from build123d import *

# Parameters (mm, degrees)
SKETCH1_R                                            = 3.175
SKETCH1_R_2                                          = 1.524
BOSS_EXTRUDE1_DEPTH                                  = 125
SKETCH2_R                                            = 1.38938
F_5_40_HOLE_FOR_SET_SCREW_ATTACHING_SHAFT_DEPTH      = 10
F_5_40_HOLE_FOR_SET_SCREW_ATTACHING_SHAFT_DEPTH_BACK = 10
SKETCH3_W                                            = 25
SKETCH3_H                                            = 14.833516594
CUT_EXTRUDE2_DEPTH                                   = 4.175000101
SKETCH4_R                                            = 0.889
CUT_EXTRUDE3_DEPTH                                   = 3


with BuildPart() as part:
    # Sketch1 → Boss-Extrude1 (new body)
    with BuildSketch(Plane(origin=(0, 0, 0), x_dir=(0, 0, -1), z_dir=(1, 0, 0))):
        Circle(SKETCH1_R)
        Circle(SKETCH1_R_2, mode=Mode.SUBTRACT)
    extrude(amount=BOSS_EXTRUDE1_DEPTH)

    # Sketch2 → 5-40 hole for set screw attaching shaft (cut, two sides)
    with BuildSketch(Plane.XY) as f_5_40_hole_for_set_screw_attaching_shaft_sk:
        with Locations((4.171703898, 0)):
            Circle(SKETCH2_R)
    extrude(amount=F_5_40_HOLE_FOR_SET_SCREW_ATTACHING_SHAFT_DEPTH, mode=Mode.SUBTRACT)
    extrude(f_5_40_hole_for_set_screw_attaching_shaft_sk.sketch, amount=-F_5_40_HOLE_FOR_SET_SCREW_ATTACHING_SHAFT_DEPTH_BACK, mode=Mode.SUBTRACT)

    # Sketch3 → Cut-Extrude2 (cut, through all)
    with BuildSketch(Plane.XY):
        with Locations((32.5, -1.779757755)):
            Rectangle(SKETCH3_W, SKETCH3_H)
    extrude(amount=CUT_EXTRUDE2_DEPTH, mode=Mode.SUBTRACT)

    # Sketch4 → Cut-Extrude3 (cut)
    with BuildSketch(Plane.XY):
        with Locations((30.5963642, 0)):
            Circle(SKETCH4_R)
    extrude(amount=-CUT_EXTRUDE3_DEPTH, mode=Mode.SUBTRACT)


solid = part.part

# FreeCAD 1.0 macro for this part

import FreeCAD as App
import Part
import Sketcher
from FreeCAD import Vector

doc = App.newDocument("Part")
params = doc.addObject("Spreadsheet::Sheet", "Params")
for row, (alias, value) in enumerate([
    ("sketch1_diameter", "6.35 mm"),
    ("pad1_length", "125 mm"),
    ("sketch3_width", "25 mm"),
    ("pocket3_length", "3 mm"),
], start=1):
    params.set(f"A{row}", alias)
    params.set(f"B{row}", "=" + value)
    params.setAlias(f"B{row}", alias)

body = doc.addObject("PartDesign::Body", "Body")

# Sketch on YZ plane
sketch1 = doc.addObject("Sketcher::SketchObject", "Sketch")
body.addObject(sketch1)
sketch1.AttachmentSupport = (doc.YZ_Plane, [""])
sketch1.MapMode = "FlatFace"
sketch1.addGeometry(Part.Circle(Vector(0, 0, 0), Vector(0, 0, 1), 3.2), False)
sketch1.addGeometry(Part.Circle(Vector(0, 0, 0), Vector(0, 0, 1), 1.5), False)
sketch1.addConstraint(Sketcher.Constraint("Coincident", 0, 3, -1, 1))
sketch1.addConstraint(Sketcher.Constraint("Coincident", 1, 3, -1, 1))
sketch1.addConstraint(Sketcher.Constraint("Diameter", 0, 6.35))
sketch1.addConstraint(Sketcher.Constraint("Diameter", 1, 3.048))
sketch1.setExpression("Constraints[2]", "Params.sketch1_diameter")
pad1 = doc.addObject("PartDesign::Pad", "Pad")
body.addObject(pad1)
pad1.Profile = sketch1
pad1.setExpression("Length", "Params.pad1_length")

# Sketch on XY plane
sketch2 = doc.addObject("Sketcher::SketchObject", "Sketch001")
body.addObject(sketch2)
sketch2.AttachmentSupport = (doc.XY_Plane, [""])
sketch2.MapMode = "FlatFace"
sketch2.addGeometry(Part.Circle(Vector(4.2, 0, 0), Vector(0, 0, 1), 1.4), False)
sketch2.addConstraint(Sketcher.Constraint("PointOnObject", 0, 3, -1))
sketch2.addConstraint(Sketcher.Constraint("Diameter", 0, 2.77876))
sketch2.addConstraint(Sketcher.Constraint("DistanceX", -1, 1, 0, 3, 4.171704))
pocket1 = doc.addObject("PartDesign::Pocket", "Pocket")
body.addObject(pocket1)
pocket1.Profile = sketch2
pocket1.Type = "ThroughAll"
pocket1.Midplane = True

# Sketch on XY plane
sketch3 = doc.addObject("Sketcher::SketchObject", "Sketch002")
body.addObject(sketch3)
sketch3.AttachmentSupport = (doc.XY_Plane, [""])
sketch3.MapMode = "FlatFace"
sketch3.addGeometry(Part.LineSegment(Vector(20, 6, 0), Vector(20, -9, 0)), False)
sketch3.addGeometry(Part.LineSegment(Vector(20, -9, 0), Vector(45, -9, 0)), False)
sketch3.addGeometry(Part.LineSegment(Vector(45, -9, 0), Vector(45, 6, 0)), False)
sketch3.addGeometry(Part.LineSegment(Vector(45, 6, 0), Vector(20, 6, 0)), False)
sketch3.addConstraint(Sketcher.Constraint("Coincident", 0, 2, 1, 1))
sketch3.addConstraint(Sketcher.Constraint("Coincident", 1, 2, 2, 1))
sketch3.addConstraint(Sketcher.Constraint("Coincident", 2, 2, 3, 1))
sketch3.addConstraint(Sketcher.Constraint("Coincident", 3, 2, 0, 1))
sketch3.addConstraint(Sketcher.Constraint("Vertical", 0))
sketch3.addConstraint(Sketcher.Constraint("Horizontal", 1))
sketch3.addConstraint(Sketcher.Constraint("Vertical", 2))
sketch3.addConstraint(Sketcher.Constraint("Horizontal", 3))
sketch3.addConstraint(Sketcher.Constraint("DistanceX", 1, 1, 1, 2, 25.0))
sketch3.addConstraint(Sketcher.Constraint("DistanceX", -1, 1, 0, 2, 20.0))
sketch3.addConstraint(Sketcher.Constraint("DistanceY", -1, 1, 2, 2, 5.637001))
sketch3.addConstraint(Sketcher.Constraint("DistanceY", 0, 2, 0, 1, 14.833517))
sketch3.setExpression("Constraints[8]", "Params.sketch3_width")
pocket2 = doc.addObject("PartDesign::Pocket", "Pocket001")
body.addObject(pocket2)
pocket2.Profile = sketch3
pocket2.Type = "ThroughAll"
pocket2.Reversed = True

# Sketch on XY plane
sketch4 = doc.addObject("Sketcher::SketchObject", "Sketch003")
body.addObject(sketch4)
sketch4.AttachmentSupport = (doc.XY_Plane, [""])
sketch4.MapMode = "FlatFace"
sketch4.addGeometry(Part.Circle(Vector(30.6, 0, 0), Vector(0, 0, 1), 0.9), False)
sketch4.addConstraint(Sketcher.Constraint("PointOnObject", 0, 3, -1))
sketch4.addConstraint(Sketcher.Constraint("Diameter", 0, 1.778))
sketch4.addConstraint(Sketcher.Constraint("DistanceX", -1, 1, 0, 3, 30.596364))
pocket3 = doc.addObject("PartDesign::Pocket", "Pocket002")
body.addObject(pocket3)
pocket3.Profile = sketch4
pocket3.setExpression("Length", "Params.pocket3_length")

doc.recompute()
